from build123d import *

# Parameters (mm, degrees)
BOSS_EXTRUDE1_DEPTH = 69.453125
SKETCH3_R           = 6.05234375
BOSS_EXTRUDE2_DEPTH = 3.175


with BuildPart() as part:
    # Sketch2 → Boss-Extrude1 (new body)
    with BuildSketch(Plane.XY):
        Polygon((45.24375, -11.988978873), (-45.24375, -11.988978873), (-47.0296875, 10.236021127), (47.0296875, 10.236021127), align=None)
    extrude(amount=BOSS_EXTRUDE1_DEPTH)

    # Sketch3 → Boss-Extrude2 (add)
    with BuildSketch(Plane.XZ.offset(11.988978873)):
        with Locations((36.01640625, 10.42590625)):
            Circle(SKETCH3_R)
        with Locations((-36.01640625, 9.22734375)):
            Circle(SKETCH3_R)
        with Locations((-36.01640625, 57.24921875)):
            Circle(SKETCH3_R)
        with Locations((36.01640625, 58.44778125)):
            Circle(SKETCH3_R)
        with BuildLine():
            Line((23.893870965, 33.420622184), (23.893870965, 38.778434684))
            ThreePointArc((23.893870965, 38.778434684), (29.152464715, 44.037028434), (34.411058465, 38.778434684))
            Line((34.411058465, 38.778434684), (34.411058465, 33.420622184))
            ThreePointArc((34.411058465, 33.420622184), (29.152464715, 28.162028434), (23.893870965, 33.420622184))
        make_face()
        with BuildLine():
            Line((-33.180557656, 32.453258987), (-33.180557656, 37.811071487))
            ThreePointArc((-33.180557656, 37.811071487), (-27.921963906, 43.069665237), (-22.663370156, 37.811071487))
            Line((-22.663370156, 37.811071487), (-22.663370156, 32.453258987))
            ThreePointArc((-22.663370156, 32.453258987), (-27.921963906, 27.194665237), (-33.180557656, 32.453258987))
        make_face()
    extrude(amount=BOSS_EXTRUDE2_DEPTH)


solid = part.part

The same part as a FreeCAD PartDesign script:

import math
import FreeCAD as App
import Part
import Sketcher

V = App.Vector
Q = App.Units.Quantity


def add_polygon(sketch, points):
    """Adds a closed chain of lines whose ends are joined by coincident constraints."""
    first, n = sketch.GeometryCount, len(points)
    for a, b in zip(points, points[1:] + points[:1]):
        sketch.addGeometry(Part.LineSegment(App.Vector(*a, 0), App.Vector(*b, 0)), False)
    for i in range(n):
        sketch.addConstraint(Sketcher.Constraint("Coincident", first + i, 2, first + (i + 1) % n, 1))

doc = App.newDocument("Part")
body = doc.addObject("PartDesign::Body", "Body")

sketch1 = body.newObject("Sketcher::SketchObject", "Sketch")
sketch1.AttachmentSupport = (doc.getObject("XY_Plane"), [""])
sketch1.MapMode = "FlatFace"
add_polygon(sketch1, [(-45, -12), (45, -12), (47, 10), (-47, 10)])
sketch1.addConstraint(Sketcher.Constraint("Horizontal", 0))
sketch1.addConstraint(Sketcher.Constraint("Horizontal", 2))
sketch1.addConstraint(Sketcher.Constraint("Equal", 1, 3))
sketch1.addConstraint(Sketcher.Constraint("DistanceX", 0, 1, 0, 2, Q("3.5625 in")))
sketch1.addConstraint(Sketcher.Constraint("DistanceX", 2, 2, 2, 1, Q("3.703125 in")))
sketch1.addConstraint(Sketcher.Constraint("DistanceX", -1, 1, 0, 2, Q("1.78125 in")))
sketch1.addConstraint(Sketcher.Constraint("DistanceY", 0, 2, 1, 2, Q("0.875 in")))
sketch1.addConstraint(Sketcher.Constraint("DistanceY", 0, 2, -1, 1, 11.988979))
pad1 = body.newObject("PartDesign::Pad", "Pad")
pad1.Profile = sketch1
pad1.Length = Q("2.734375 in")

sketch2 = body.newObject("Sketcher::SketchObject", "Sketch001")
sketch2.AttachmentSupport = (doc.getObject("XZ_Plane"), [""])
sketch2.MapMode = "FlatFace"
sketch2.AttachmentOffset = App.Placement(V(0, 0, 11.988979), App.Rotation())
sketch2.addGeometry(Part.Circle(V(36, 10, 0), V(0, 0, 1), 6), False)
sketch2.addGeometry(Part.Circle(V(-36, 9, 0), V(0, 0, 1), 6), False)
sketch2.addGeometry(Part.Circle(V(-36, 57, 0), V(0, 0, 1), 6), False)
sketch2.addGeometry(Part.Circle(V(36, 58, 0), V(0, 0, 1), 6), False)
sketch2.addGeometry(Part.LineSegment(V(24, 39, 0), V(24, 33, 0)), False)
sketch2.addGeometry(Part.ArcOfCircle(Part.Circle(V(29, 33, 0), V(0, 0, 1), 5), math.radians(180), math.radians(360)), False)
sketch2.addGeometry(Part.LineSegment(V(34, 33, 0), V(34, 39, 0)), False)
sketch2.addGeometry(Part.ArcOfCircle(Part.Circle(V(29, 39, 0), V(0, 0, 1), 5), math.radians(0), math.radians(180)), False)
sketch2.addGeometry(Part.LineSegment(V(-33, 38, 0), V(-33, 32, 0)), False)
sketch2.addGeometry(Part.ArcOfCircle(Part.Circle(V(-28, 32, 0), V(0, 0, 1), 5), math.radians(180), math.radians(360)), False)
sketch2.addGeometry(Part.LineSegment(V(-23, 32, 0), V(-23, 38, 0)), False)
sketch2.addGeometry(Part.ArcOfCircle(Part.Circle(V(-28, 38, 0), V(0, 0, 1), 5), math.radians(0), math.radians(180)), False)
sketch2.addConstraint(Sketcher.Constraint("Tangent", 4, 2, 5, 1))
sketch2.addConstraint(Sketcher.Constraint("Tangent", 5, 2, 6, 1))
sketch2.addConstraint(Sketcher.Constraint("Tangent", 6, 2, 7, 1))
sketch2.addConstraint(Sketcher.Constraint("Tangent", 7, 2, 4, 1))
sketch2.addConstraint(Sketcher.Constraint("Tangent", 8, 2, 9, 1))
sketch2.addConstraint(Sketcher.Constraint("Tangent", 9, 2, 10, 1))
sketch2.addConstraint(Sketcher.Constraint("Tangent", 10, 2, 11, 1))
sketch2.addConstraint(Sketcher.Constraint("Tangent", 11, 2, 8, 1))
sketch2.addConstraint(Sketcher.Constraint("Vertical", 4))
sketch2.addConstraint(Sketcher.Constraint("Vertical", 6))
sketch2.addConstraint(Sketcher.Constraint("Vertical", 8))
sketch2.addConstraint(Sketcher.Constraint("Vertical", 10))
sketch2.addConstraint(Sketcher.Constraint("Equal", 0, 1))
sketch2.addConstraint(Sketcher.Constraint("Equal", 1, 2))
sketch2.addConstraint(Sketcher.Constraint("Equal", 2, 3))
sketch2.addConstraint(Sketcher.Constraint("Equal", 7, 9))
sketch2.addConstraint(Sketcher.Constraint("Vertical", 1, 3, 2, 3))
sketch2.addConstraint(Sketcher.Constraint("Vertical", 0, 3, 3, 3))
sketch2.addConstraint(Sketcher.Constraint("Equal", 6, 8))
sketch2.addConstraint(Sketcher.Constraint("DistanceY", 1, 3, 2, 3, Q("1.890625 in")))
sketch2.addConstraint(Sketcher.Constraint("DistanceY", 0, 3, 3, 3, Q("1.890625 in")))
sketch2.addConstraint(Sketcher.Constraint("Diameter", 0, 12.104688))
sketch2.addConstraint(Sketcher.Constraint("Radius", 5, 5.258594))
sketch2.addConstraint(Sketcher.Constraint("DistanceY", 4, 2, 4, 1, 5.357812))
sketch2.addConstraint(Sketcher.Constraint("DistanceY", -1, 1, 2, 3, 57.249219))
sketch2.addConstraint(Sketcher.Constraint("DistanceY", -1, 1, 3, 3, 58.447781))
sketch2.addConstraint(Sketcher.Constraint("DistanceY", -1, 1, 9, 3, 32.453259))
sketch2.addConstraint(Sketcher.Constraint("DistanceX", -1, 1, 4, 2, 23.893871))
sketch2.addConstraint(Sketcher.Constraint("DistanceX", 9, 2, -1, 1, 22.66337))
sketch2.addConstraint(Sketcher.Constraint("DistanceX", 5, 3, 0, 3, 6.863942))
sketch2.addConstraint(Sketcher.Constraint("DistanceY", 5, 3, 3, 3, 25.027159))
sketch2.addConstraint(Sketcher.Constraint("DistanceX", 2, 3, 5, 3, 65.168871))
pad2 = body.newObject("PartDesign::Pad", "Pad001")
pad2.Profile = sketch2
pad2.Length = Q("0.125 in")

doc.recompute()
